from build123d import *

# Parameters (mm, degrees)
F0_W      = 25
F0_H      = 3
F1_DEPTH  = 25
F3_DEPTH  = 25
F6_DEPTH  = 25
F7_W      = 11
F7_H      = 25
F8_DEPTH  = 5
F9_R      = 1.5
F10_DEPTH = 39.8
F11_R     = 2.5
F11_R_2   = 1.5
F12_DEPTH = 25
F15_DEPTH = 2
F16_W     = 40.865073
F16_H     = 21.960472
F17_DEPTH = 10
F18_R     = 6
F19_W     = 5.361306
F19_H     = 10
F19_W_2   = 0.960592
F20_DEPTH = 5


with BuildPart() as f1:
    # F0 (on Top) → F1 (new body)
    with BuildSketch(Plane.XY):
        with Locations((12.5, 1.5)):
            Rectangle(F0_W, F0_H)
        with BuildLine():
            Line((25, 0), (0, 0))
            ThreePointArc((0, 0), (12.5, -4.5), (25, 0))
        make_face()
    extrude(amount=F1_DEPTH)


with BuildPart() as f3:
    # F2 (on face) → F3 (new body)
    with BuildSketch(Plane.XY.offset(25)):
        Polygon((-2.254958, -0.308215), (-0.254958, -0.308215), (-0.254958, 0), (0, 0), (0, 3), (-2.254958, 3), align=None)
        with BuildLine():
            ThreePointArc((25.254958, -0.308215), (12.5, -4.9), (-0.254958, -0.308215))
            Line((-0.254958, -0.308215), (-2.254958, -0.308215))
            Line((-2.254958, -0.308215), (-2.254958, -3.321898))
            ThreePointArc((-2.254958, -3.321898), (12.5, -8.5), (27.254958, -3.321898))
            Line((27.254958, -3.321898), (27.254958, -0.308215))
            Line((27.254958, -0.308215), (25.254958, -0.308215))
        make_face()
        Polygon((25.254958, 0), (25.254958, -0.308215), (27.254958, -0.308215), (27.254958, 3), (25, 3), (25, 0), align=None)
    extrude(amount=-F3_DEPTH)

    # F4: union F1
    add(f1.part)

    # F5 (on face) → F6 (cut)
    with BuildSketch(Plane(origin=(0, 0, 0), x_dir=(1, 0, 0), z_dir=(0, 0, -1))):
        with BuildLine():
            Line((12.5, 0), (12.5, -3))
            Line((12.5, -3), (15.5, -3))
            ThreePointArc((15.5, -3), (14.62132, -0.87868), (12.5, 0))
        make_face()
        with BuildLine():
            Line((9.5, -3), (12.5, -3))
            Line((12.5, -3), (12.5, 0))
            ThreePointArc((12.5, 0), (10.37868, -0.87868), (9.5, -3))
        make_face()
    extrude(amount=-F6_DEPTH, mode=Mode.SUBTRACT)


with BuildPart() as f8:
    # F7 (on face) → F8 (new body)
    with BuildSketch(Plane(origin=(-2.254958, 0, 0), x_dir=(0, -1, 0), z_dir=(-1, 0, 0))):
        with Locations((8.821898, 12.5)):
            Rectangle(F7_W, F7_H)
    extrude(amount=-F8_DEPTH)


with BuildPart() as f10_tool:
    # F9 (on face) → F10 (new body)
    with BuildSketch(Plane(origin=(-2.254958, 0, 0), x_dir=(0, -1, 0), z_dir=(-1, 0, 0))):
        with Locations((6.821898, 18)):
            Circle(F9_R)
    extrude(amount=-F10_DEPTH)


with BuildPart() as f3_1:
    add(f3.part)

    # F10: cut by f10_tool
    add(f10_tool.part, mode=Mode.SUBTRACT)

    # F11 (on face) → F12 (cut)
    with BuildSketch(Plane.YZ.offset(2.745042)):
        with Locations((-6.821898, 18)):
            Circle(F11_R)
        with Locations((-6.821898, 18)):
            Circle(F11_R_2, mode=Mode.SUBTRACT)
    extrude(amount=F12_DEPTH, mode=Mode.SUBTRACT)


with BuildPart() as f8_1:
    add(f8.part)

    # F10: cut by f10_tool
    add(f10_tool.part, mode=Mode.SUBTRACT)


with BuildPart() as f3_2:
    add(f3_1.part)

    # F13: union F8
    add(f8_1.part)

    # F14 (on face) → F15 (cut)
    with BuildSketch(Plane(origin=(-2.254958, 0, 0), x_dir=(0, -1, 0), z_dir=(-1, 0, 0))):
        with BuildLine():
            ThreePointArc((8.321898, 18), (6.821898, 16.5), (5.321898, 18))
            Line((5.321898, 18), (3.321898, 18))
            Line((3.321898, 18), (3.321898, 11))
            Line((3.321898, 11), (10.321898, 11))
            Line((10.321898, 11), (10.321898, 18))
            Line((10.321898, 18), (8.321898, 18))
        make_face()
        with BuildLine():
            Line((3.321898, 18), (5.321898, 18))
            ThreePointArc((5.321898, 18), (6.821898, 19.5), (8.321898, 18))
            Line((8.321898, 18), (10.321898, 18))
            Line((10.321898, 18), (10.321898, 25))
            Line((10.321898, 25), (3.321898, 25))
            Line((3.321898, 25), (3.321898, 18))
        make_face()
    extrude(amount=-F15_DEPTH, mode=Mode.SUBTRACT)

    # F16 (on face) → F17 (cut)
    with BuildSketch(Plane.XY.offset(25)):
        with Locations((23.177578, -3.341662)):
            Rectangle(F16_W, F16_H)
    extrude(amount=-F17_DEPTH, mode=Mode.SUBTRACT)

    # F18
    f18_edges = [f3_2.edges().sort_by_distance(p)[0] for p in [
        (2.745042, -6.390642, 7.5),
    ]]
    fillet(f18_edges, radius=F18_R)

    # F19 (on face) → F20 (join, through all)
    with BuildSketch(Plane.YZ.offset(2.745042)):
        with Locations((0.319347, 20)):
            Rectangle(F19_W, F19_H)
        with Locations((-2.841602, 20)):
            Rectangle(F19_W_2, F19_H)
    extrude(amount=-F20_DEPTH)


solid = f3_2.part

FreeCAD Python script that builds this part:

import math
import FreeCAD as App
import Part
import Sketcher
from FreeCAD import Vector


def edges_at(feature, points):
    """Names of the edges that pass closest to the given points."""
    edges = feature.Shape.Edges
    near = lambda p: min(range(len(edges)), key=lambda i: edges[i].distToShape(Part.Vertex(*p))[0])
    return sorted({f"Edge{near(p) + 1}" for p in points})

doc = App.newDocument("Part")
body = doc.addObject("PartDesign::Body", "Body")

sketch1 = doc.addObject("Sketcher::SketchObject", "Sketch")
body.addObject(sketch1)
sketch1.AttachmentSupport = (doc.XY_Plane, [""])
sketch1.MapMode = "FlatFace"
sketch1.addGeometry(Part.LineSegment(Vector(0, 3, 0), Vector(0, 0, 0)), False)
sketch1.addGeometry(Part.ArcOfCircle(Part.Circle(Vector(12.5, 15.1, 0), Vector(0, 0, 1), 19.6), math.radians(-130), math.radians(-50)), False)
sketch1.addGeometry(Part.LineSegment(Vector(25, 0, 0), Vector(25, 3, 0)), False)
sketch1.addGeometry(Part.LineSegment(Vector(25, 3, 0), Vector(0, 3, 0)), False)
sketch1.addConstraint(Sketcher.Constraint("Coincident", 0, 2, 1, 1))
sketch1.addConstraint(Sketcher.Constraint("Coincident", 1, 2, 2, 1))
sketch1.addConstraint(Sketcher.Constraint("Coincident", 2, 2, 3, 1))
sketch1.addConstraint(Sketcher.Constraint("Coincident", 3, 2, 0, 1))
sketch1.addConstraint(Sketcher.Constraint("Vertical", 0))
sketch1.addConstraint(Sketcher.Constraint("Vertical", 2))
sketch1.addConstraint(Sketcher.Constraint("Horizontal", 3))
sketch1.addConstraint(Sketcher.Constraint("Coincident", 0, 2, -1, 1))
sketch1.addConstraint(Sketcher.Constraint("PointOnObject", 1, 2, -1))
sketch1.addConstraint(Sketcher.Constraint("DistanceX", 3, 2, 3, 1, 25.0))
sketch1.addConstraint(Sketcher.Constraint("DistanceY", 0, 2, 0, 1, 3.0))
sketch1.addConstraint(Sketcher.Constraint("Radius", 1, 19.611111))
pad1 = doc.addObject("PartDesign::Pad", "Pad")
body.addObject(pad1)
pad1.Profile = sketch1
pad1.Length = 25
body2 = doc.addObject("PartDesign::Body", "Body001")

sketch2 = doc.addObject("Sketcher::SketchObject", "Sketch001")
body2.addObject(sketch2)
sketch2.AttachmentSupport = (doc.getObject("XY_Plane001"), [""])
sketch2.MapMode = "FlatFace"
sketch2.AttachmentOffset = App.Placement(Vector(0, 0, 25), App.Rotation())
sketch2.addGeometry(Part.LineSegment(Vector(-0.25, -0.31, 0), Vector(-0.25, 0, 0)), False)
sketch2.addGeometry(Part.LineSegment(Vector(-0.25, 0, 0), Vector(0, 0, 0)), False)
sketch2.addGeometry(Part.LineSegment(Vector(0, 0, 0), Vector(0, 3, 0)), False)
sketch2.addGeometry(Part.LineSegment(Vector(0, 3, 0), Vector(-2.25, 3, 0)), False)
sketch2.addGeometry(Part.LineSegment(Vector(-2.25, 3, 0), Vector(-2.25, -3.32, 0)), False)
sketch2.addGeometry(Part.ArcOfCircle(Part.Circle(Vector(12.5, 15.11, 0), Vector(0, 0, 1), 23.61), math.radians(-129), math.radians(-51)), False)
sketch2.addGeometry(Part.LineSegment(Vector(27.25, -3.32, 0), Vector(27.25, 3, 0)), False)
sketch2.addGeometry(Part.LineSegment(Vector(27.25, 3, 0), Vector(25, 3, 0)), False)
sketch2.addGeometry(Part.LineSegment(Vector(25, 3, 0), Vector(25, 0, 0)), False)
sketch2.addGeometry(Part.LineSegment(Vector(25, 0, 0), Vector(25.25, 0, 0)), False)
sketch2.addGeometry(Part.LineSegment(Vector(25.25, 0, 0), Vector(25.25, -0.31, 0)), False)
sketch2.addGeometry(Part.ArcOfCircle(Part.Circle(Vector(12.5, 15.11, 0), Vector(0, 0, 1), 20.01), math.radians(-130), math.radians(-50)), False)
sketch2.addConstraint(Sketcher.Constraint("Coincident", 0, 2, 1, 1))
sketch2.addConstraint(Sketcher.Constraint("Coincident", 1, 2, 2, 1))
sketch2.addConstraint(Sketcher.Constraint("Coincident", 2, 2, 3, 1))
sketch2.addConstraint(Sketcher.Constraint("Coincident", 3, 2, 4, 1))
sketch2.addConstraint(Sketcher.Constraint("Coincident", 4, 2, 5, 1))
sketch2.addConstraint(Sketcher.Constraint("Coincident", 5, 2, 6, 1))
sketch2.addConstraint(Sketcher.Constraint("Coincident", 6, 2, 7, 1))
sketch2.addConstraint(Sketcher.Constraint("Coincident", 7, 2, 8, 1))
sketch2.addConstraint(Sketcher.Constraint("Coincident", 8, 2, 9, 1))
sketch2.addConstraint(Sketcher.Constraint("Coincident", 9, 2, 10, 1))
sketch2.addConstraint(Sketcher.Constraint("Coincident", 10, 2, 11, 2))
sketch2.addConstraint(Sketcher.Constraint("Coincident", 11, 1, 0, 1))
sketch2.addConstraint(Sketcher.Constraint("Vertical", 0))
sketch2.addConstraint(Sketcher.Constraint("Horizontal", 1))
sketch2.addConstraint(Sketcher.Constraint("Vertical", 2))
sketch2.addConstraint(Sketcher.Constraint("Horizontal", 3))
sketch2.addConstraint(Sketcher.Constraint("Vertical", 4))
sketch2.addConstraint(Sketcher.Constraint("Vertical", 6))
sketch2.addConstraint(Sketcher.Constraint("Horizontal", 7))
sketch2.addConstraint(Sketcher.Constraint("Vertical", 8))
sketch2.addConstraint(Sketcher.Constraint("Horizontal", 9))
sketch2.addConstraint(Sketcher.Constraint("Vertical", 10))
sketch2.addConstraint(Sketcher.Constraint("Coincident", 1, 2, -1, 1))
sketch2.addConstraint(Sketcher.Constraint("Coincident", 11, 3, 5, 3))
sketch2.addConstraint(Sketcher.Constraint("PointOnObject", 8, 2, -1))
sketch2.addConstraint(Sketcher.Constraint("Horizontal", 4, 2, 5, 2))
sketch2.addConstraint(Sketcher.Constraint("Horizontal", 3, 2, 6, 2))
sketch2.addConstraint(Sketcher.Constraint("Horizontal", 10, 2, 11, 1))
sketch2.addConstraint(Sketcher.Constraint("Equal", 3, 7))
sketch2.addConstraint(Sketcher.Constraint("DistanceY", 2, 1, 2, 2, 3.0))
sketch2.addConstraint(Sketcher.Constraint("DistanceX", -1, 1, 7, 2, 25.0))
sketch2.addConstraint(Sketcher.Constraint("DistanceX", 3, 2, 0, 2, 2.0))
sketch2.addConstraint(Sketcher.Constraint("Radius", 11, 20.011111))
sketch2.addConstraint(Sketcher.Constraint("Radius", 5, 23.611115))
sketch2.addConstraint(Sketcher.Constraint("DistanceY", 4, 2, -1, 1, 3.321898))
sketch2.addConstraint(Sketcher.Constraint("DistanceX", 1, 1, 1, 2, 0.254958))
pad2 = doc.addObject("PartDesign::Pad", "Pad001")
body2.addObject(pad2)
pad2.Profile = sketch2
pad2.Length = 25
pad2.Reversed = True
doc.recompute()

boolean = doc.addObject("PartDesign::Boolean", "Boolean")
body2.addObject(boolean)
boolean.Type = "Fuse"
boolean.addObjects([body])

sketch3 = doc.addObject("Sketcher::SketchObject", "Sketch002")
body2.addObject(sketch3)
sketch3.AttachmentSupport = (doc.getObject("XY_Plane001"), [""])
sketch3.MapMode = "FlatFace"
sketch3.addGeometry(Part.ArcOfCircle(Part.Circle(Vector(12.5, 3, 0), Vector(0, 0, 1), 3), math.radians(-90), math.radians(0)), False)
sketch3.addGeometry(Part.ArcOfCircle(Part.Circle(Vector(12.5, 3, 0), Vector(0, 0, 1), 3), math.radians(-180), math.radians(-90)), False)
sketch3.addGeometry(Part.LineSegment(Vector(9.5, 3, 0), Vector(15.5, 3, 0)), False)
sketch3.addConstraint(Sketcher.Constraint("Tangent", 0, 1, 1, 2))
sketch3.addConstraint(Sketcher.Constraint("Coincident", 1, 1, 2, 1))
sketch3.addConstraint(Sketcher.Constraint("Coincident", 2, 2, 0, 2))
sketch3.addConstraint(Sketcher.Constraint("Horizontal", 2))
sketch3.addConstraint(Sketcher.Constraint("Equal", 0, 1))
sketch3.addConstraint(Sketcher.Constraint("PointOnObject", 0, 1, -1))
sketch3.addConstraint(Sketcher.Constraint("Horizontal", 0, 3, 1, 1))
sketch3.addConstraint(Sketcher.Constraint("Vertical", 1, 3, 0, 1))
sketch3.addConstraint(Sketcher.Constraint("Radius", 0, 3.000001))
sketch3.addConstraint(Sketcher.Constraint("DistanceX", -1, 1, 0, 3, 12.499999))
pocket1 = doc.addObject("PartDesign::Pocket", "Pocket")
body2.addObject(pocket1)
pocket1.Profile = sketch3
pocket1.Length = 25
pocket1.Reversed = True
body3 = doc.addObject("PartDesign::Body", "Body002")

sketch4 = doc.addObject("Sketcher::SketchObject", "Sketch003")
body3.addObject(sketch4)
sketch4.AttachmentSupport = (doc.getObject("YZ_Plane002"), [""])
sketch4.MapMode = "FlatFace"
sketch4.AttachmentOffset = App.Placement(Vector(0, 0, -2.254958), App.Rotation())
sketch4.addGeometry(Part.LineSegment(Vector(-3, 25, 0), Vector(-3, 0, 0)), False)
sketch4.addGeometry(Part.LineSegment(Vector(-3, 0, 0), Vector(-14, 0, 0)), False)
sketch4.addGeometry(Part.LineSegment(Vector(-14, 0, 0), Vector(-14, 25, 0)), False)
sketch4.addGeometry(Part.LineSegment(Vector(-14, 25, 0), Vector(-3, 25, 0)), False)
sketch4.addConstraint(Sketcher.Constraint("Coincident", 0, 2, 1, 1))
sketch4.addConstraint(Sketcher.Constraint("Coincident", 1, 2, 2, 1))
sketch4.addConstraint(Sketcher.Constraint("Coincident", 2, 2, 3, 1))
sketch4.addConstraint(Sketcher.Constraint("Coincident", 3, 2, 0, 1))
sketch4.addConstraint(Sketcher.Constraint("Vertical", 0))
sketch4.addConstraint(Sketcher.Constraint("Horizontal", 1))
sketch4.addConstraint(Sketcher.Constraint("Vertical", 2))
sketch4.addConstraint(Sketcher.Constraint("Horizontal", 3))
sketch4.addConstraint(Sketcher.Constraint("PointOnObject", 0, 2, -1))
sketch4.addConstraint(Sketcher.Constraint("DistanceX", 1, 2, 1, 1, 11.0))
sketch4.addConstraint(Sketcher.Constraint("DistanceY", 0, 2, 0, 1, 25.0))
sketch4.addConstraint(Sketcher.Constraint("DistanceX", 0, 2, -1, 1, 3.321898))
pad3 = doc.addObject("PartDesign::Pad", "Pad002")
body3.addObject(pad3)
pad3.Profile = sketch4
pad3.Length = 5
body4 = doc.addObject("PartDesign::Body", "Body003")

sketch5 = doc.addObject("Sketcher::SketchObject", "Sketch004")
body4.addObject(sketch5)
sketch5.AttachmentSupport = (doc.getObject("YZ_Plane003"), [""])
sketch5.MapMode = "FlatFace"
sketch5.AttachmentOffset = App.Placement(Vector(0, 0, -2.254958), App.Rotation())
sketch5.addGeometry(Part.Circle(Vector(-6.8, 18, 0), Vector(0, 0, 1), 1.5), False)
sketch5.addConstraint(Sketcher.Constraint("Diameter", 0, 3.0))
sketch5.addConstraint(Sketcher.Constraint("DistanceY", -1, 1, 0, 3, 18.0))
sketch5.addConstraint(Sketcher.Constraint("DistanceX", 0, 3, -1, 1, 6.821898))
pad4 = doc.addObject("PartDesign::Pad", "Pad003")
body4.addObject(pad4)
pad4.Profile = sketch5
pad4.Length = 39.8
doc.recompute()

body5 = doc.addObject("PartDesign::Body", "Body004")
body5.BaseFeature = body4
boolean2 = doc.addObject("PartDesign::Boolean", "Boolean001")
body2.addObject(boolean2)
boolean2.Type = "Cut"
boolean2.addObjects([body5])
doc.recompute()

sketch6 = doc.addObject("Sketcher::SketchObject", "Sketch005")
body2.addObject(sketch6)
sketch6.AttachmentSupport = (doc.getObject("YZ_Plane001"), [""])
sketch6.MapMode = "FlatFace"
sketch6.AttachmentOffset = App.Placement(Vector(0, 0, 2.745042), App.Rotation())
sketch6.addGeometry(Part.Circle(Vector(-6.8, 18, 0), Vector(0, 0, 1), 2.5), False)
sketch6.addGeometry(Part.Circle(Vector(-6.8, 18, 0), Vector(0, 0, 1), 1.5), False)
sketch6.addConstraint(Sketcher.Constraint("Coincident", 1, 3, 0, 3))
sketch6.addConstraint(Sketcher.Constraint("Diameter", 0, 5.0))
sketch6.addConstraint(Sketcher.Constraint("Diameter", 1, 3.0))
sketch6.addConstraint(Sketcher.Constraint("DistanceY", -1, 1, 0, 3, 18.0))
sketch6.addConstraint(Sketcher.Constraint("DistanceX", 0, 3, -1, 1, 6.821898))
pocket2 = doc.addObject("PartDesign::Pocket", "Pocket001")
body2.addObject(pocket2)
pocket2.Profile = sketch6
pocket2.Length = 25
pocket2.Reversed = True
doc.recompute()

boolean3 = doc.addObject("PartDesign::Boolean", "Boolean002")
body3.addObject(boolean3)
boolean3.Type = "Cut"
boolean3.addObjects([body4])
doc.recompute()

boolean4 = doc.addObject("PartDesign::Boolean", "Boolean003")
body2.addObject(boolean4)
boolean4.Type = "Fuse"
boolean4.addObjects([body3])

sketch7 = doc.addObject("Sketcher::SketchObject", "Sketch006")
body2.addObject(sketch7)
sketch7.AttachmentSupport = (doc.getObject("YZ_Plane001"), [""])
sketch7.MapMode = "FlatFace"
sketch7.AttachmentOffset = App.Placement(Vector(0, 0, -2.254958), App.Rotation())
sketch7.addGeometry(Part.LineSegment(Vector(-3.3, 11, 0), Vector(-10.3, 11, 0)), False)
sketch7.addGeometry(Part.LineSegment(Vector(-10.3, 11, 0), Vector(-10.3, 25, 0)), False)
sketch7.addGeometry(Part.LineSegment(Vector(-10.3, 25, 0), Vector(-3.3, 25, 0)), False)
sketch7.addGeometry(Part.LineSegment(Vector(-3.3, 25, 0), Vector(-3.3, 11, 0)), False)
sketch7.addGeometry(Part.Circle(Vector(-6.8, 18, 0), Vector(0, 0, 1), 1.5), False)
sketch7.addConstraint(Sketcher.Constraint("Coincident", 0, 2, 1, 1))
sketch7.addConstraint(Sketcher.Constraint("Coincident", 1, 2, 2, 1))
sketch7.addConstraint(Sketcher.Constraint("Coincident", 2, 2, 3, 1))
sketch7.addConstraint(Sketcher.Constraint("Coincident", 3, 2, 0, 1))
sketch7.addConstraint(Sketcher.Constraint("Horizontal", 0))
sketch7.addConstraint(Sketcher.Constraint("Vertical", 1))
sketch7.addConstraint(Sketcher.Constraint("Horizontal", 2))
sketch7.addConstraint(Sketcher.Constraint("Vertical", 3))
sketch7.addConstraint(Sketcher.Constraint("Diameter", 4, 3.0))
sketch7.addConstraint(Sketcher.Constraint("DistanceX", 0, 2, 0, 1, 7.0))
sketch7.addConstraint(Sketcher.Constraint("DistanceY", 1, 1, 1, 2, 14.0))
sketch7.addConstraint(Sketcher.Constraint("DistanceY", -1, 1, 4, 3, 18.0))
sketch7.addConstraint(Sketcher.Constraint("DistanceY", -1, 1, 0, 2, 11.0))
sketch7.addConstraint(Sketcher.Constraint("DistanceX", 0, 2, 4, 3, 3.5))
sketch7.addConstraint(Sketcher.Constraint("DistanceX", 2, 2, -1, 1, 3.321898))
pocket3 = doc.addObject("PartDesign::Pocket", "Pocket002")
body2.addObject(pocket3)
pocket3.Profile = sketch7
pocket3.Length = 2
pocket3.Reversed = True

sketch8 = doc.addObject("Sketcher::SketchObject", "Sketch007")
body2.addObject(sketch8)
sketch8.AttachmentSupport = (doc.getObject("XY_Plane001"), [""])
sketch8.MapMode = "FlatFace"
sketch8.AttachmentOffset = App.Placement(Vector(0, 0, 25), App.Rotation())
sketch8.addGeometry(Part.LineSegment(Vector(3, 8, 0), Vector(3, -14, 0)), False)
sketch8.addGeometry(Part.LineSegment(Vector(3, -14, 0), Vector(44, -14, 0)), False)
sketch8.addGeometry(Part.LineSegment(Vector(44, -14, 0), Vector(44, 8, 0)), False)
sketch8.addGeometry(Part.LineSegment(Vector(44, 8, 0), Vector(3, 8, 0)), False)
sketch8.addConstraint(Sketcher.Constraint("Coincident", 0, 2, 1, 1))
sketch8.addConstraint(Sketcher.Constraint("Coincident", 1, 2, 2, 1))
sketch8.addConstraint(Sketcher.Constraint("Coincident", 2, 2, 3, 1))
sketch8.addConstraint(Sketcher.Constraint("Coincident", 3, 2, 0, 1))
sketch8.addConstraint(Sketcher.Constraint("Vertical", 0))
sketch8.addConstraint(Sketcher.Constraint("Horizontal", 1))
sketch8.addConstraint(Sketcher.Constraint("Vertical", 2))
sketch8.addConstraint(Sketcher.Constraint("Horizontal", 3))
sketch8.addConstraint(Sketcher.Constraint("DistanceY", 0, 2, 0, 1, 21.960472))
sketch8.addConstraint(Sketcher.Constraint("DistanceX", 1, 1, 1, 2, 40.865073))
sketch8.addConstraint(Sketcher.Constraint("DistanceX", -1, 1, 0, 2, 2.745042))
sketch8.addConstraint(Sketcher.Constraint("DistanceY", 0, 2, -1, 1, 14.321898))
pocket4 = doc.addObject("PartDesign::Pocket", "Pocket003")
body2.addObject(pocket4)
pocket4.Profile = sketch8
pocket4.Length = 10
doc.recompute()

fillet = doc.addObject("PartDesign::Fillet", "Fillet")
body2.addObject(fillet)
fillet.Base = (pocket4, edges_at(pocket4, [(2.745, -6.391, 7.5)]))
fillet.Radius = 6

sketch9 = doc.addObject("Sketcher::SketchObject", "Sketch008")
body2.addObject(sketch9)
sketch9.AttachmentSupport = (doc.getObject("YZ_Plane001"), [""])
sketch9.MapMode = "FlatFace"
sketch9.AttachmentOffset = App.Placement(Vector(0, 0, 2.745042), App.Rotation())
sketch9.addGeometry(Part.LineSegment(Vector(3, 15, 0), Vector(3, 25, 0)), False)
sketch9.addGeometry(Part.LineSegment(Vector(3, 25, 0), Vector(-3, 25, 0)), False)
sketch9.addGeometry(Part.LineSegment(Vector(-3, 25, 0), Vector(-3, 15, 0)), False)
sketch9.addGeometry(Part.LineSegment(Vector(-3, 15, 0), Vector(3, 15, 0)), False)
sketch9.addConstraint(Sketcher.Constraint("Coincident", 0, 2, 1, 1))
sketch9.addConstraint(Sketcher.Constraint("Coincident", 1, 2, 2, 1))
sketch9.addConstraint(Sketcher.Constraint("Coincident", 2, 2, 3, 1))
sketch9.addConstraint(Sketcher.Constraint("Coincident", 3, 2, 0, 1))
sketch9.addConstraint(Sketcher.Constraint("Vertical", 0))
sketch9.addConstraint(Sketcher.Constraint("Horizontal", 1))
sketch9.addConstraint(Sketcher.Constraint("Vertical", 2))
sketch9.addConstraint(Sketcher.Constraint("Horizontal", 3))
sketch9.addConstraint(Sketcher.Constraint("DistanceY", 0, 1, 0, 2, 10.0))
sketch9.addConstraint(Sketcher.Constraint("DistanceX", -1, 1, 0, 2, 3.0))
sketch9.addConstraint(Sketcher.Constraint("DistanceY", -1, 1, 0, 2, 25.0))
sketch9.addConstraint(Sketcher.Constraint("DistanceX", 1, 2, -1, 1, 3.321898))
pad5 = doc.addObject("PartDesign::Pad", "Pad004")
body2.addObject(pad5)
pad5.Profile = sketch9
pad5.Type = "UpToLast"
pad5.Reversed = True

doc.recompute()
